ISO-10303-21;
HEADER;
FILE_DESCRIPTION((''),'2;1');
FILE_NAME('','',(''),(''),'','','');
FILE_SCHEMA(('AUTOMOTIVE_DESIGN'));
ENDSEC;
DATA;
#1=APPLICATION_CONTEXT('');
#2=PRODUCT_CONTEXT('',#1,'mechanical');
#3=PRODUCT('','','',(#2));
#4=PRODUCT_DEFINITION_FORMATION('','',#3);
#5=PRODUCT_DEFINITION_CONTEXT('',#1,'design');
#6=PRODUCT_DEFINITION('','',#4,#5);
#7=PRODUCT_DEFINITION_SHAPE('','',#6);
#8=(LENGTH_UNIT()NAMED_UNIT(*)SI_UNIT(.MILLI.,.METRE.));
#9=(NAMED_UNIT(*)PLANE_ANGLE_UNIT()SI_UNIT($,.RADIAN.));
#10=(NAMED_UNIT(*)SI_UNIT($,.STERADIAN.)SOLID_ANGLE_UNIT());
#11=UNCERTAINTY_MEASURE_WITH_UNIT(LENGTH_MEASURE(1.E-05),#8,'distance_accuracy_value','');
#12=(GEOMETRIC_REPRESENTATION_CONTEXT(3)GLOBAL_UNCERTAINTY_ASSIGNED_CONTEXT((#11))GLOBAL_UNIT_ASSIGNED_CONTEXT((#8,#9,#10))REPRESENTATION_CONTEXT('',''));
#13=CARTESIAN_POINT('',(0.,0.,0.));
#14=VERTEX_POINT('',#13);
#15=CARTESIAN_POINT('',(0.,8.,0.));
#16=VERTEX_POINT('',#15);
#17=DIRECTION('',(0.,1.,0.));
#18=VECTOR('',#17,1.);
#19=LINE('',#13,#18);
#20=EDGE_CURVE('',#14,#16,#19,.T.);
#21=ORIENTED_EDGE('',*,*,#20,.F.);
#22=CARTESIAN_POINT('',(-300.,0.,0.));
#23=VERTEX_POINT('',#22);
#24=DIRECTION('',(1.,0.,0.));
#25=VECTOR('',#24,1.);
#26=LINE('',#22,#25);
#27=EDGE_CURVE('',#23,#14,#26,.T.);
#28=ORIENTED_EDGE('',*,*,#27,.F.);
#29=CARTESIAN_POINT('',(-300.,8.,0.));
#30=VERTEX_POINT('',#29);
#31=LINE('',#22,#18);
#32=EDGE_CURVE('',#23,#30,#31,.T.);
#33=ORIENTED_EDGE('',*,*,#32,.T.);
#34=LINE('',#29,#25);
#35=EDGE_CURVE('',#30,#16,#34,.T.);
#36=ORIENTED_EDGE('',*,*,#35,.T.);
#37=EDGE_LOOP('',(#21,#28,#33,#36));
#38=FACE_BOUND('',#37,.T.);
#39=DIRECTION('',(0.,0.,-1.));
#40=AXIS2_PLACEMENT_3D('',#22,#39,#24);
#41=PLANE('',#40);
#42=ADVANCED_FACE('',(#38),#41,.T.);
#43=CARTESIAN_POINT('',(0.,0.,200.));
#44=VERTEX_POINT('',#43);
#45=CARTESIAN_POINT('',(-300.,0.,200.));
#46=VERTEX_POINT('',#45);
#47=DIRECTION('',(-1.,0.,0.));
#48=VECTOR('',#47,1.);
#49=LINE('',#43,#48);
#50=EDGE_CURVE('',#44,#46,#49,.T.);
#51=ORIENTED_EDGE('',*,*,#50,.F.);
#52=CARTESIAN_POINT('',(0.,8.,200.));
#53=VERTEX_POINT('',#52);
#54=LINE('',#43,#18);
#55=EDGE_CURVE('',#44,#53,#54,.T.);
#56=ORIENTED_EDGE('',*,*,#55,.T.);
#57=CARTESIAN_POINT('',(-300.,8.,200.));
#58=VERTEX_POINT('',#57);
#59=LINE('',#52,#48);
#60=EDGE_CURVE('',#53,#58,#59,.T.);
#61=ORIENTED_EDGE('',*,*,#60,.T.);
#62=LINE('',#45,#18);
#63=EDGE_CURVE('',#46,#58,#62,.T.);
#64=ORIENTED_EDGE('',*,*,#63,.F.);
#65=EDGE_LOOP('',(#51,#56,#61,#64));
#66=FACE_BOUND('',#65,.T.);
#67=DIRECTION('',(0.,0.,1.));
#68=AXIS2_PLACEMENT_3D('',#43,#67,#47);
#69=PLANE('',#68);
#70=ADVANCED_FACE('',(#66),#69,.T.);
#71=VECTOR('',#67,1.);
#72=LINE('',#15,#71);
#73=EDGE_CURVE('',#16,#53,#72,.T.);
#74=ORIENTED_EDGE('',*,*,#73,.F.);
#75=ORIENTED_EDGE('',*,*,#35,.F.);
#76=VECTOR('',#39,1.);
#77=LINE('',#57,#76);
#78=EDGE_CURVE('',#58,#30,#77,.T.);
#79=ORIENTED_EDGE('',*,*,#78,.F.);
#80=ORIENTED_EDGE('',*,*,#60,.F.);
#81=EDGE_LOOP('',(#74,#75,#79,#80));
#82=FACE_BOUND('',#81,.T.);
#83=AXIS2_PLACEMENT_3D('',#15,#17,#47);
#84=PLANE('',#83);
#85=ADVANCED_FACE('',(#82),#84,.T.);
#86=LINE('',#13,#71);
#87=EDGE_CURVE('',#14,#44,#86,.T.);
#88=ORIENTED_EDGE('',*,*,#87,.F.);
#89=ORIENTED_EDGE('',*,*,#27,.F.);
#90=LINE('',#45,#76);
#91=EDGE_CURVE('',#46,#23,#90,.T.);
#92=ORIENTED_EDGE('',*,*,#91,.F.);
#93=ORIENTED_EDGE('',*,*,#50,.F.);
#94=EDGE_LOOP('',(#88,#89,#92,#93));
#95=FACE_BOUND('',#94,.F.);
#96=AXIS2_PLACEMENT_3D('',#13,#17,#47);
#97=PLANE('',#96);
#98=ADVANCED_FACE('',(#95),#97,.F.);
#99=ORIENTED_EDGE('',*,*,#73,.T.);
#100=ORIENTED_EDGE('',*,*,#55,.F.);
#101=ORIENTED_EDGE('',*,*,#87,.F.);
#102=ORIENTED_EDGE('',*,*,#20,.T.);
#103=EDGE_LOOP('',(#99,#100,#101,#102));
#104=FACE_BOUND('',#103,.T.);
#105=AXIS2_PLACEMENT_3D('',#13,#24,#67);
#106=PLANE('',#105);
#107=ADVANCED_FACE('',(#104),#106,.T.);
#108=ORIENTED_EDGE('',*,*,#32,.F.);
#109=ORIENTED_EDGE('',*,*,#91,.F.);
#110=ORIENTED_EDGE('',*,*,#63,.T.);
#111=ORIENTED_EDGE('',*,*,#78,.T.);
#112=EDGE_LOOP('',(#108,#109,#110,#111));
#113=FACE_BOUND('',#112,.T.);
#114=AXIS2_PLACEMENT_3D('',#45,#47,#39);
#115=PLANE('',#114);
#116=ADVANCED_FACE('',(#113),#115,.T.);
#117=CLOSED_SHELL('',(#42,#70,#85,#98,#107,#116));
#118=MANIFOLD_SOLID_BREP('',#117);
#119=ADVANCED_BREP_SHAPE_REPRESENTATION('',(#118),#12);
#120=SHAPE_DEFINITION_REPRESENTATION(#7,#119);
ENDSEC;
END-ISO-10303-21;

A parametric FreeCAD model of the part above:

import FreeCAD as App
import Part
import Sketcher


def add_polygon(sketch, points):
    """Adds a closed chain of lines whose ends are joined by coincident constraints."""
    first, n = sketch.GeometryCount, len(points)
    for a, b in zip(points, points[1:] + points[:1]):
        sketch.addGeometry(Part.LineSegment(App.Vector(*a, 0), App.Vector(*b, 0)), False)
    for i in range(n):
        sketch.addConstraint(Sketcher.Constraint("Coincident", first + i, 2, first + (i + 1) % n, 1))

doc = App.newDocument("Part")
body = doc.addObject("PartDesign::Body", "Body")

# Sketch on XZ plane
sketch1 = body.newObject("Sketcher::SketchObject", "Sketch")
sketch1.AttachmentSupport = (doc.getObject("XZ_Plane"), [""])
sketch1.MapMode = "FlatFace"
add_polygon(sketch1, [(0, 200), (0, 0), (-300, 0), (-300, 200)])  # lines 0-3
sketch1.addConstraint(Sketcher.Constraint("Vertical", 0))
sketch1.addConstraint(Sketcher.Constraint("Horizontal", 1))
sketch1.addConstraint(Sketcher.Constraint("Vertical", 2))
sketch1.addConstraint(Sketcher.Constraint("Horizontal", 3))
sketch1.addConstraint(Sketcher.Constraint("Coincident", 0, 2, -1, 1))
sketch1.addConstraint(Sketcher.Constraint("DistanceX", 1, 2, 1, 1, 300.0))
sketch1.addConstraint(Sketcher.Constraint("DistanceY", 0, 2, 0, 1, 200.0))
pad1 = body.newObject("PartDesign::Pad", "Pad")
pad1.Profile = sketch1
pad1.Length = 8
pad1.Reversed = True

doc.recompute()
